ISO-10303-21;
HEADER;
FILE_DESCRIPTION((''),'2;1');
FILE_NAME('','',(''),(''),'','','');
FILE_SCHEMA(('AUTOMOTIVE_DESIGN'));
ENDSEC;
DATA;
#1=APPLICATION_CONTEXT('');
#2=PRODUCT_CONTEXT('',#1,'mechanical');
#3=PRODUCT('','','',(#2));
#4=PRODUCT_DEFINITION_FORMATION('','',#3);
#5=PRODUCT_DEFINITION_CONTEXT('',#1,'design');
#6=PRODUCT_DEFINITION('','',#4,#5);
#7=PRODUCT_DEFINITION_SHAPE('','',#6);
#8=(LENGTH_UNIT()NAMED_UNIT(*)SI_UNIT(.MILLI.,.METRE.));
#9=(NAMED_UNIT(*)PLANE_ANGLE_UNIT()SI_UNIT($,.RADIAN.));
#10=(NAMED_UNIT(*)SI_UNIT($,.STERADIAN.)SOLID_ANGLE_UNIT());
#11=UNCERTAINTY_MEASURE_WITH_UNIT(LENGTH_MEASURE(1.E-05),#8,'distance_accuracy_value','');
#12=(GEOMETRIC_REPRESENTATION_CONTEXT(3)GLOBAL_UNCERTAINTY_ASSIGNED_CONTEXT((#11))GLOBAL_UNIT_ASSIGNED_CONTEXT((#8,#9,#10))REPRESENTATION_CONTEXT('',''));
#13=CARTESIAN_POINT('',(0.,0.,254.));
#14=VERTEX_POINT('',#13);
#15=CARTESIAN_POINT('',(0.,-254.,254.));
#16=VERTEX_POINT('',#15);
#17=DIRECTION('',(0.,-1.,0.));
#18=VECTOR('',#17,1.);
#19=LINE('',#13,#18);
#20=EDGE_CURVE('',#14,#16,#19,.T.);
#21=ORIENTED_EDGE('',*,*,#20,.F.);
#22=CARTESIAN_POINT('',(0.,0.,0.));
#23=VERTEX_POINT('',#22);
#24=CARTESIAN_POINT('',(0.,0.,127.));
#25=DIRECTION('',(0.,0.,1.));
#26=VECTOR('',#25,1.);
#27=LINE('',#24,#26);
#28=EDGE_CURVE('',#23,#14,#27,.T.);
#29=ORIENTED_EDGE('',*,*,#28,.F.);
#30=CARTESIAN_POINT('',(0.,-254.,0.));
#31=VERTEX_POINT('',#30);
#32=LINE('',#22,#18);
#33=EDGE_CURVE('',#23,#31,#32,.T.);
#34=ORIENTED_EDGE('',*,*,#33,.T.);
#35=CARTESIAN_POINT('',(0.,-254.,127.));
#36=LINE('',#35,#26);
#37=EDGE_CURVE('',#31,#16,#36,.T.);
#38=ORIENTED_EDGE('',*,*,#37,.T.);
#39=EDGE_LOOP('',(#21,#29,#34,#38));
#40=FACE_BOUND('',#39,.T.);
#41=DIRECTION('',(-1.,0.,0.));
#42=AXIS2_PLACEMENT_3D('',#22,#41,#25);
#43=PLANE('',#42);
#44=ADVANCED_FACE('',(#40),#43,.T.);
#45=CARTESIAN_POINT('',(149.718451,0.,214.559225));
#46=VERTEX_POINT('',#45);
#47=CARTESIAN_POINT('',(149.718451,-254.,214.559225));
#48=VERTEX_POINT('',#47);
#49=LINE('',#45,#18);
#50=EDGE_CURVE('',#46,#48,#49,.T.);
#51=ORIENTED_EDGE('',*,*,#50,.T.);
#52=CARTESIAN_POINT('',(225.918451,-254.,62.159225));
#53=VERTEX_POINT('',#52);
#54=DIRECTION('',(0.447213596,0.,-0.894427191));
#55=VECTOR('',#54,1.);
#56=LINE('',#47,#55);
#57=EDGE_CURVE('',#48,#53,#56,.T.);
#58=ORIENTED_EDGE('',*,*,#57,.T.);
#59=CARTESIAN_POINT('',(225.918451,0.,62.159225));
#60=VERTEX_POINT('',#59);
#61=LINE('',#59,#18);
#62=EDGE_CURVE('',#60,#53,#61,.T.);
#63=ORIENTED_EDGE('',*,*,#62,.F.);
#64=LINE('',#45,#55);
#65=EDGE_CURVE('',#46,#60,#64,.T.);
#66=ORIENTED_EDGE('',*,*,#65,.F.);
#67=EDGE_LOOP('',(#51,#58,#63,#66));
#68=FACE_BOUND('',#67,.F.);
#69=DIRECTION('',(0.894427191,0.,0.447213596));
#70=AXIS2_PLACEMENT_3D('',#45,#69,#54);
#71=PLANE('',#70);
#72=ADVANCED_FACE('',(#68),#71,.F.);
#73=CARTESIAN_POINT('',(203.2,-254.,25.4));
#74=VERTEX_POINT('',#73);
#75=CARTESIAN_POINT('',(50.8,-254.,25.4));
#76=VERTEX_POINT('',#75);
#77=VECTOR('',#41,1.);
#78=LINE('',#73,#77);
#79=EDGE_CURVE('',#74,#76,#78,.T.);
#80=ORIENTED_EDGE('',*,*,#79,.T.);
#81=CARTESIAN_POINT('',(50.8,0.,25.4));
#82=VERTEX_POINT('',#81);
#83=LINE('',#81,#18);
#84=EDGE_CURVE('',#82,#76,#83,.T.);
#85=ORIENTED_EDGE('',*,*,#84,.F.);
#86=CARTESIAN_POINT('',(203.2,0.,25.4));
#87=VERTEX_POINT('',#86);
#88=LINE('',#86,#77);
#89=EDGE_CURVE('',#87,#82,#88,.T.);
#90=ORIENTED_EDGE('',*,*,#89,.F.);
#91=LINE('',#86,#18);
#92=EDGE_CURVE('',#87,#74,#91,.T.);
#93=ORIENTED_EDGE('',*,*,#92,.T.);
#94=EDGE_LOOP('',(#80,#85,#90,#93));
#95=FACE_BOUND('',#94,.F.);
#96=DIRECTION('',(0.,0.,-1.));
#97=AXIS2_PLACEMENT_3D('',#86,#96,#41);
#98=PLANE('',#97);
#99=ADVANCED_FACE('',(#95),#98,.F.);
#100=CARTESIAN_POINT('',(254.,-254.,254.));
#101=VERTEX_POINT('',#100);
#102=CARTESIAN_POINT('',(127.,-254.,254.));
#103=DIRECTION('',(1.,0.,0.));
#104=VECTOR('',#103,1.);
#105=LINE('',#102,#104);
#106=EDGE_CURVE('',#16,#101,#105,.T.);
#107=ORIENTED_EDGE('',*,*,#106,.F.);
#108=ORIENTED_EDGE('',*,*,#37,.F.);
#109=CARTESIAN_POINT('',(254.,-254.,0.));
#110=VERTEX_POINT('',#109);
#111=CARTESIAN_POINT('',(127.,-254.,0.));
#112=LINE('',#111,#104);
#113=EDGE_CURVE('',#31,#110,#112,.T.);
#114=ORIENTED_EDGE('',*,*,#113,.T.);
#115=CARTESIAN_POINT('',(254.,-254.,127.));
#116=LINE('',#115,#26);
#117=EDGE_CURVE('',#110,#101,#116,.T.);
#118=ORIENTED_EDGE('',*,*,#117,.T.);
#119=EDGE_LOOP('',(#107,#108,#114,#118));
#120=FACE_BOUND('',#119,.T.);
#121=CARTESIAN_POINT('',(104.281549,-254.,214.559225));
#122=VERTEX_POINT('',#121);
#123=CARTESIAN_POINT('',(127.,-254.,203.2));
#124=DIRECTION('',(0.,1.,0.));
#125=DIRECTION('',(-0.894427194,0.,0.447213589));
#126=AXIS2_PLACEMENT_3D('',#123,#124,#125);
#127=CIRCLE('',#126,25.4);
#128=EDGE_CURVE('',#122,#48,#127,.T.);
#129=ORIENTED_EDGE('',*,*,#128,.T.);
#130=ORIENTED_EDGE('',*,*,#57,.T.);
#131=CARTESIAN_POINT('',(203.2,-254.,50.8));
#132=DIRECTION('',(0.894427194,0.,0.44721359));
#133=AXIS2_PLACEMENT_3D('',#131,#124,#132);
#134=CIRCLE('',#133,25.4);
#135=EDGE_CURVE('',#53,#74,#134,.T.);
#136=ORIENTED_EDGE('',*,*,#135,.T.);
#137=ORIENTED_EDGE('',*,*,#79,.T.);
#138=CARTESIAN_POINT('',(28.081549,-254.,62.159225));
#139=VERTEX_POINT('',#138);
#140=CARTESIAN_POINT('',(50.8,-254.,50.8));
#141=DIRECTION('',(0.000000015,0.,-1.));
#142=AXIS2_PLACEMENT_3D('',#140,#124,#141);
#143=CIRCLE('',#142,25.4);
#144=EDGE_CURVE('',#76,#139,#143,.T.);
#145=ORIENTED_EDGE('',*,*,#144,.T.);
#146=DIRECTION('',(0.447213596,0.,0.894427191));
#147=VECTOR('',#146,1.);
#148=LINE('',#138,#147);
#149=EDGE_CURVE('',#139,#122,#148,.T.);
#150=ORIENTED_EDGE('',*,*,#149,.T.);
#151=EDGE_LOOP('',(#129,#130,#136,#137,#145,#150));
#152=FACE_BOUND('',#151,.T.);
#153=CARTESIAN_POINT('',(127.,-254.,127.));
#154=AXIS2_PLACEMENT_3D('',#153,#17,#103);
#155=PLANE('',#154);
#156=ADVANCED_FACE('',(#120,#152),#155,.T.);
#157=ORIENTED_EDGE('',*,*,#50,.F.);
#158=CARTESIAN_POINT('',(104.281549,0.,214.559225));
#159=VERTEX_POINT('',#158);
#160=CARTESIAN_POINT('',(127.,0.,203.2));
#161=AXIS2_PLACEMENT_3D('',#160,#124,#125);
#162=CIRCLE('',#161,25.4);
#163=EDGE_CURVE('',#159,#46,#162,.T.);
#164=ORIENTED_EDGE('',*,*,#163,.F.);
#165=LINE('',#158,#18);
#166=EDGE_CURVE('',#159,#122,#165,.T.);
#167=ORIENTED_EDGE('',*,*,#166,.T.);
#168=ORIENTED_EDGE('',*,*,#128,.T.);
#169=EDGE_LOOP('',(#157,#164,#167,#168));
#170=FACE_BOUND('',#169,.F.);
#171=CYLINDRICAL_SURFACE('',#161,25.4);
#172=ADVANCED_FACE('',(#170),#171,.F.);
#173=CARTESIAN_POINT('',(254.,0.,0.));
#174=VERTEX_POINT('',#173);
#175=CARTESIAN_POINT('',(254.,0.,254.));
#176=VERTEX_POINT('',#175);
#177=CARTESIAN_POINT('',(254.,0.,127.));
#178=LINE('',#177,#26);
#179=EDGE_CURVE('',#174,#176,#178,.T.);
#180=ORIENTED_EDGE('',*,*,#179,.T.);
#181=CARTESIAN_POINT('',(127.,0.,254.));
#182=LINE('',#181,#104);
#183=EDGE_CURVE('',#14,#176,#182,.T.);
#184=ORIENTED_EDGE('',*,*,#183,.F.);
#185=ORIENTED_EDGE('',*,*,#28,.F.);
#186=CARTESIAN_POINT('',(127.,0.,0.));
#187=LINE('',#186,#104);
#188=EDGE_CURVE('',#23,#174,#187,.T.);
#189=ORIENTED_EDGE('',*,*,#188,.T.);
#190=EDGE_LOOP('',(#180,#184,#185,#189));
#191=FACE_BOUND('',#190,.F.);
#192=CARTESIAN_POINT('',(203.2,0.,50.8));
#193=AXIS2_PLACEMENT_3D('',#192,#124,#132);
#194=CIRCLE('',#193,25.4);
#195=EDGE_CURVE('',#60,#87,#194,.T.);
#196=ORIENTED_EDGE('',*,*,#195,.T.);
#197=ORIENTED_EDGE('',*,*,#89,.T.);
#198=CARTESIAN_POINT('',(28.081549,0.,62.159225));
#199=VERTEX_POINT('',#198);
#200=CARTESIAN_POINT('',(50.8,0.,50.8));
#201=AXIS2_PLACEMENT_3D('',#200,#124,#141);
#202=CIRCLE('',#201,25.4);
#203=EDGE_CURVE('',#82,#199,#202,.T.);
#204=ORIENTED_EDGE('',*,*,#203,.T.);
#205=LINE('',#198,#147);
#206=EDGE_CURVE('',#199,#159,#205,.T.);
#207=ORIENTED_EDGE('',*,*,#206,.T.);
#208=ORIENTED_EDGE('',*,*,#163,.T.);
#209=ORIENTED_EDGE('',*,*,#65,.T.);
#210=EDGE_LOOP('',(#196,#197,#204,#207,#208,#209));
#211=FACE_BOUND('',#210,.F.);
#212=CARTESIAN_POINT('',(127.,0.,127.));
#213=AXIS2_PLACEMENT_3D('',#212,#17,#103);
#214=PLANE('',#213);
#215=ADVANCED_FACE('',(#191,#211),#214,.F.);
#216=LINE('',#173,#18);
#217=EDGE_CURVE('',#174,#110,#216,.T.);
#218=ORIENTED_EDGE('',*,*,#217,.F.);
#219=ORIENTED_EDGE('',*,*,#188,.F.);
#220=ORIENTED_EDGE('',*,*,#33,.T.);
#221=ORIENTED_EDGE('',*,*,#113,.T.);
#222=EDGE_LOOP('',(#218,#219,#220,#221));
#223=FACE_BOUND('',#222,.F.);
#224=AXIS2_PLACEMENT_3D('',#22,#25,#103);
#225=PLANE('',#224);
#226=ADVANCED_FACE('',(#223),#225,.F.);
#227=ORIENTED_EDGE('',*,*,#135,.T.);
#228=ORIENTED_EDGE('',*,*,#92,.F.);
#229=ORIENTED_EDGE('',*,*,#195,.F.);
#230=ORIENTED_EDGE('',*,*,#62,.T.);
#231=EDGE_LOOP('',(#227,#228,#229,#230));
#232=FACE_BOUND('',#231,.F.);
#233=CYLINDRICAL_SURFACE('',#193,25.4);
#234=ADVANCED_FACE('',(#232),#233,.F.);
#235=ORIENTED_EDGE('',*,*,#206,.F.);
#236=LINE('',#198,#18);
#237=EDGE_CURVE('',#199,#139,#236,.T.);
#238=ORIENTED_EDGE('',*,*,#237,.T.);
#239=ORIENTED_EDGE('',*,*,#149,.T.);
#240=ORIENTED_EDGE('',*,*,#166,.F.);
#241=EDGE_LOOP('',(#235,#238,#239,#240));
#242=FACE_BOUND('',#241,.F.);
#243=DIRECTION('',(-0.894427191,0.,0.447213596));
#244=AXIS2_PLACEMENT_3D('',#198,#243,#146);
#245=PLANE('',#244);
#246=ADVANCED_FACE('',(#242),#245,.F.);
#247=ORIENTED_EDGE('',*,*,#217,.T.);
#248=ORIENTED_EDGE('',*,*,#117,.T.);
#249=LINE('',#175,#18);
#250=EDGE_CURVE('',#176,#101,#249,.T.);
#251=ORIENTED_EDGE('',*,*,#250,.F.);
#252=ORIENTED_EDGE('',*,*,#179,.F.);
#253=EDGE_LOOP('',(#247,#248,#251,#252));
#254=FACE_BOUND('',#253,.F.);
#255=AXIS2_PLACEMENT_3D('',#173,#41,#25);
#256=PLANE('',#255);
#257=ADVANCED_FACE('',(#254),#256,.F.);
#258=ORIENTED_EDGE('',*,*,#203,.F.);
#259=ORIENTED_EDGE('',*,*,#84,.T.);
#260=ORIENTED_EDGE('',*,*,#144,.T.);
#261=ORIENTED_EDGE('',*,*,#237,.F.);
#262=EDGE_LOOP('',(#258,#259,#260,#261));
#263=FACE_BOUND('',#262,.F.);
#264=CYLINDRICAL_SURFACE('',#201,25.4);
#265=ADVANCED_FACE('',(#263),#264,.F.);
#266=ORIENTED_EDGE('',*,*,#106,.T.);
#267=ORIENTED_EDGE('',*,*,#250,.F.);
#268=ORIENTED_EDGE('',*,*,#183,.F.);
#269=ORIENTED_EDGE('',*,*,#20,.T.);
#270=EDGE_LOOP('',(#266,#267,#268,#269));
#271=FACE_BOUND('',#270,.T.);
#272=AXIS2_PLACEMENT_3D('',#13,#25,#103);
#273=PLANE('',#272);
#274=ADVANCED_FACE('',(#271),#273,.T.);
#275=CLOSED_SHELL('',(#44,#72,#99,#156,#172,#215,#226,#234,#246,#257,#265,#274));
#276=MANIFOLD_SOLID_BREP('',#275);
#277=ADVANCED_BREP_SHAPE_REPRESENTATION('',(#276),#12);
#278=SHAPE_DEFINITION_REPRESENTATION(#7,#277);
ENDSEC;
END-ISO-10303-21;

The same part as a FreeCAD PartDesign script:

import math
import FreeCAD as App
import Part
import Sketcher

V = App.Vector
Q = App.Units.Quantity


def add_polygon(sketch, points):
    """Adds a closed chain of lines whose ends are joined by coincident constraints."""
    first, n = sketch.GeometryCount, len(points)
    for a, b in zip(points, points[1:] + points[:1]):
        sketch.addGeometry(Part.LineSegment(App.Vector(*a, 0), App.Vector(*b, 0)), False)
    for i in range(n):
        sketch.addConstraint(Sketcher.Constraint("Coincident", first + i, 2, first + (i + 1) % n, 1))

doc = App.newDocument("Part")
body = doc.addObject("PartDesign::Body", "Body")

sketch1 = body.newObject("Sketcher::SketchObject", "Sketch")
sketch1.AttachmentSupport = (doc.getObject("XZ_Plane"), [""])
sketch1.MapMode = "FlatFace"
add_polygon(sketch1, [(0, 254), (0, 0), (254, 0), (254, 254)])
sketch1.addGeometry(Part.LineSegment(V(203, 25, 0), V(51, 25, 0)), False)
sketch1.addGeometry(Part.ArcOfCircle(Part.Circle(V(51, 51, 0), V(0, 0, 1), 25), math.radians(153), math.radians(270)), False)
sketch1.addGeometry(Part.LineSegment(V(28, 62, 0), V(104, 215, 0)), False)
sketch1.addGeometry(Part.ArcOfCircle(Part.Circle(V(127, 203, 0), V(0, 0, 1), 25), math.radians(27), math.radians(153)), False)
sketch1.addGeometry(Part.LineSegment(V(150, 215, 0), V(226, 62, 0)), False)
sketch1.addGeometry(Part.ArcOfCircle(Part.Circle(V(203, 51, 0), V(0, 0, 1), 25), math.radians(-90), math.radians(27)), False)
sketch1.addConstraint(Sketcher.Constraint("Tangent", 4, 2, 5, 2))
sketch1.addConstraint(Sketcher.Constraint("Tangent", 5, 1, 6, 1))
sketch1.addConstraint(Sketcher.Constraint("Tangent", 6, 2, 7, 2))
sketch1.addConstraint(Sketcher.Constraint("Tangent", 7, 1, 8, 1))
sketch1.addConstraint(Sketcher.Constraint("Tangent", 8, 2, 9, 2))
sketch1.addConstraint(Sketcher.Constraint("Tangent", 9, 1, 4, 1))
sketch1.addConstraint(Sketcher.Constraint("Vertical", 0))
sketch1.addConstraint(Sketcher.Constraint("Horizontal", 1))
sketch1.addConstraint(Sketcher.Constraint("Vertical", 2))
sketch1.addConstraint(Sketcher.Constraint("Horizontal", 3))
sketch1.addConstraint(Sketcher.Constraint("Horizontal", 4))
sketch1.addConstraint(Sketcher.Constraint("Coincident", 0, 2, -1, 1))
sketch1.addConstraint(Sketcher.Constraint("Equal", 5, 7))
sketch1.addConstraint(Sketcher.Constraint("Equal", 7, 9))
sketch1.addConstraint(Sketcher.Constraint("Horizontal", 6, 2, 7, 1))
sketch1.addConstraint(Sketcher.Constraint("Equal", 3, 0))
sketch1.addConstraint(Sketcher.Constraint("Radius", 5, Q("1 in")))
sketch1.addConstraint(Sketcher.Constraint("DistanceX", 1, 1, 1, 2, Q("10 in")))
sketch1.addConstraint(Sketcher.Constraint("DistanceX", 4, 2, 4, 1, Q("6 in")))
sketch1.addConstraint(Sketcher.Constraint("DistanceX", -1, 1, 5, 3, Q("2 in")))
sketch1.addConstraint(Sketcher.Constraint("DistanceY", -1, 1, 5, 3, Q("2 in")))
sketch1.addConstraint(Sketcher.Constraint("DistanceY", -1, 1, 7, 3, Q("8 in")))
pad1 = body.newObject("PartDesign::Pad", "Pad")
pad1.Profile = sketch1
pad1.Length = Q("10 in")

doc.recompute()
